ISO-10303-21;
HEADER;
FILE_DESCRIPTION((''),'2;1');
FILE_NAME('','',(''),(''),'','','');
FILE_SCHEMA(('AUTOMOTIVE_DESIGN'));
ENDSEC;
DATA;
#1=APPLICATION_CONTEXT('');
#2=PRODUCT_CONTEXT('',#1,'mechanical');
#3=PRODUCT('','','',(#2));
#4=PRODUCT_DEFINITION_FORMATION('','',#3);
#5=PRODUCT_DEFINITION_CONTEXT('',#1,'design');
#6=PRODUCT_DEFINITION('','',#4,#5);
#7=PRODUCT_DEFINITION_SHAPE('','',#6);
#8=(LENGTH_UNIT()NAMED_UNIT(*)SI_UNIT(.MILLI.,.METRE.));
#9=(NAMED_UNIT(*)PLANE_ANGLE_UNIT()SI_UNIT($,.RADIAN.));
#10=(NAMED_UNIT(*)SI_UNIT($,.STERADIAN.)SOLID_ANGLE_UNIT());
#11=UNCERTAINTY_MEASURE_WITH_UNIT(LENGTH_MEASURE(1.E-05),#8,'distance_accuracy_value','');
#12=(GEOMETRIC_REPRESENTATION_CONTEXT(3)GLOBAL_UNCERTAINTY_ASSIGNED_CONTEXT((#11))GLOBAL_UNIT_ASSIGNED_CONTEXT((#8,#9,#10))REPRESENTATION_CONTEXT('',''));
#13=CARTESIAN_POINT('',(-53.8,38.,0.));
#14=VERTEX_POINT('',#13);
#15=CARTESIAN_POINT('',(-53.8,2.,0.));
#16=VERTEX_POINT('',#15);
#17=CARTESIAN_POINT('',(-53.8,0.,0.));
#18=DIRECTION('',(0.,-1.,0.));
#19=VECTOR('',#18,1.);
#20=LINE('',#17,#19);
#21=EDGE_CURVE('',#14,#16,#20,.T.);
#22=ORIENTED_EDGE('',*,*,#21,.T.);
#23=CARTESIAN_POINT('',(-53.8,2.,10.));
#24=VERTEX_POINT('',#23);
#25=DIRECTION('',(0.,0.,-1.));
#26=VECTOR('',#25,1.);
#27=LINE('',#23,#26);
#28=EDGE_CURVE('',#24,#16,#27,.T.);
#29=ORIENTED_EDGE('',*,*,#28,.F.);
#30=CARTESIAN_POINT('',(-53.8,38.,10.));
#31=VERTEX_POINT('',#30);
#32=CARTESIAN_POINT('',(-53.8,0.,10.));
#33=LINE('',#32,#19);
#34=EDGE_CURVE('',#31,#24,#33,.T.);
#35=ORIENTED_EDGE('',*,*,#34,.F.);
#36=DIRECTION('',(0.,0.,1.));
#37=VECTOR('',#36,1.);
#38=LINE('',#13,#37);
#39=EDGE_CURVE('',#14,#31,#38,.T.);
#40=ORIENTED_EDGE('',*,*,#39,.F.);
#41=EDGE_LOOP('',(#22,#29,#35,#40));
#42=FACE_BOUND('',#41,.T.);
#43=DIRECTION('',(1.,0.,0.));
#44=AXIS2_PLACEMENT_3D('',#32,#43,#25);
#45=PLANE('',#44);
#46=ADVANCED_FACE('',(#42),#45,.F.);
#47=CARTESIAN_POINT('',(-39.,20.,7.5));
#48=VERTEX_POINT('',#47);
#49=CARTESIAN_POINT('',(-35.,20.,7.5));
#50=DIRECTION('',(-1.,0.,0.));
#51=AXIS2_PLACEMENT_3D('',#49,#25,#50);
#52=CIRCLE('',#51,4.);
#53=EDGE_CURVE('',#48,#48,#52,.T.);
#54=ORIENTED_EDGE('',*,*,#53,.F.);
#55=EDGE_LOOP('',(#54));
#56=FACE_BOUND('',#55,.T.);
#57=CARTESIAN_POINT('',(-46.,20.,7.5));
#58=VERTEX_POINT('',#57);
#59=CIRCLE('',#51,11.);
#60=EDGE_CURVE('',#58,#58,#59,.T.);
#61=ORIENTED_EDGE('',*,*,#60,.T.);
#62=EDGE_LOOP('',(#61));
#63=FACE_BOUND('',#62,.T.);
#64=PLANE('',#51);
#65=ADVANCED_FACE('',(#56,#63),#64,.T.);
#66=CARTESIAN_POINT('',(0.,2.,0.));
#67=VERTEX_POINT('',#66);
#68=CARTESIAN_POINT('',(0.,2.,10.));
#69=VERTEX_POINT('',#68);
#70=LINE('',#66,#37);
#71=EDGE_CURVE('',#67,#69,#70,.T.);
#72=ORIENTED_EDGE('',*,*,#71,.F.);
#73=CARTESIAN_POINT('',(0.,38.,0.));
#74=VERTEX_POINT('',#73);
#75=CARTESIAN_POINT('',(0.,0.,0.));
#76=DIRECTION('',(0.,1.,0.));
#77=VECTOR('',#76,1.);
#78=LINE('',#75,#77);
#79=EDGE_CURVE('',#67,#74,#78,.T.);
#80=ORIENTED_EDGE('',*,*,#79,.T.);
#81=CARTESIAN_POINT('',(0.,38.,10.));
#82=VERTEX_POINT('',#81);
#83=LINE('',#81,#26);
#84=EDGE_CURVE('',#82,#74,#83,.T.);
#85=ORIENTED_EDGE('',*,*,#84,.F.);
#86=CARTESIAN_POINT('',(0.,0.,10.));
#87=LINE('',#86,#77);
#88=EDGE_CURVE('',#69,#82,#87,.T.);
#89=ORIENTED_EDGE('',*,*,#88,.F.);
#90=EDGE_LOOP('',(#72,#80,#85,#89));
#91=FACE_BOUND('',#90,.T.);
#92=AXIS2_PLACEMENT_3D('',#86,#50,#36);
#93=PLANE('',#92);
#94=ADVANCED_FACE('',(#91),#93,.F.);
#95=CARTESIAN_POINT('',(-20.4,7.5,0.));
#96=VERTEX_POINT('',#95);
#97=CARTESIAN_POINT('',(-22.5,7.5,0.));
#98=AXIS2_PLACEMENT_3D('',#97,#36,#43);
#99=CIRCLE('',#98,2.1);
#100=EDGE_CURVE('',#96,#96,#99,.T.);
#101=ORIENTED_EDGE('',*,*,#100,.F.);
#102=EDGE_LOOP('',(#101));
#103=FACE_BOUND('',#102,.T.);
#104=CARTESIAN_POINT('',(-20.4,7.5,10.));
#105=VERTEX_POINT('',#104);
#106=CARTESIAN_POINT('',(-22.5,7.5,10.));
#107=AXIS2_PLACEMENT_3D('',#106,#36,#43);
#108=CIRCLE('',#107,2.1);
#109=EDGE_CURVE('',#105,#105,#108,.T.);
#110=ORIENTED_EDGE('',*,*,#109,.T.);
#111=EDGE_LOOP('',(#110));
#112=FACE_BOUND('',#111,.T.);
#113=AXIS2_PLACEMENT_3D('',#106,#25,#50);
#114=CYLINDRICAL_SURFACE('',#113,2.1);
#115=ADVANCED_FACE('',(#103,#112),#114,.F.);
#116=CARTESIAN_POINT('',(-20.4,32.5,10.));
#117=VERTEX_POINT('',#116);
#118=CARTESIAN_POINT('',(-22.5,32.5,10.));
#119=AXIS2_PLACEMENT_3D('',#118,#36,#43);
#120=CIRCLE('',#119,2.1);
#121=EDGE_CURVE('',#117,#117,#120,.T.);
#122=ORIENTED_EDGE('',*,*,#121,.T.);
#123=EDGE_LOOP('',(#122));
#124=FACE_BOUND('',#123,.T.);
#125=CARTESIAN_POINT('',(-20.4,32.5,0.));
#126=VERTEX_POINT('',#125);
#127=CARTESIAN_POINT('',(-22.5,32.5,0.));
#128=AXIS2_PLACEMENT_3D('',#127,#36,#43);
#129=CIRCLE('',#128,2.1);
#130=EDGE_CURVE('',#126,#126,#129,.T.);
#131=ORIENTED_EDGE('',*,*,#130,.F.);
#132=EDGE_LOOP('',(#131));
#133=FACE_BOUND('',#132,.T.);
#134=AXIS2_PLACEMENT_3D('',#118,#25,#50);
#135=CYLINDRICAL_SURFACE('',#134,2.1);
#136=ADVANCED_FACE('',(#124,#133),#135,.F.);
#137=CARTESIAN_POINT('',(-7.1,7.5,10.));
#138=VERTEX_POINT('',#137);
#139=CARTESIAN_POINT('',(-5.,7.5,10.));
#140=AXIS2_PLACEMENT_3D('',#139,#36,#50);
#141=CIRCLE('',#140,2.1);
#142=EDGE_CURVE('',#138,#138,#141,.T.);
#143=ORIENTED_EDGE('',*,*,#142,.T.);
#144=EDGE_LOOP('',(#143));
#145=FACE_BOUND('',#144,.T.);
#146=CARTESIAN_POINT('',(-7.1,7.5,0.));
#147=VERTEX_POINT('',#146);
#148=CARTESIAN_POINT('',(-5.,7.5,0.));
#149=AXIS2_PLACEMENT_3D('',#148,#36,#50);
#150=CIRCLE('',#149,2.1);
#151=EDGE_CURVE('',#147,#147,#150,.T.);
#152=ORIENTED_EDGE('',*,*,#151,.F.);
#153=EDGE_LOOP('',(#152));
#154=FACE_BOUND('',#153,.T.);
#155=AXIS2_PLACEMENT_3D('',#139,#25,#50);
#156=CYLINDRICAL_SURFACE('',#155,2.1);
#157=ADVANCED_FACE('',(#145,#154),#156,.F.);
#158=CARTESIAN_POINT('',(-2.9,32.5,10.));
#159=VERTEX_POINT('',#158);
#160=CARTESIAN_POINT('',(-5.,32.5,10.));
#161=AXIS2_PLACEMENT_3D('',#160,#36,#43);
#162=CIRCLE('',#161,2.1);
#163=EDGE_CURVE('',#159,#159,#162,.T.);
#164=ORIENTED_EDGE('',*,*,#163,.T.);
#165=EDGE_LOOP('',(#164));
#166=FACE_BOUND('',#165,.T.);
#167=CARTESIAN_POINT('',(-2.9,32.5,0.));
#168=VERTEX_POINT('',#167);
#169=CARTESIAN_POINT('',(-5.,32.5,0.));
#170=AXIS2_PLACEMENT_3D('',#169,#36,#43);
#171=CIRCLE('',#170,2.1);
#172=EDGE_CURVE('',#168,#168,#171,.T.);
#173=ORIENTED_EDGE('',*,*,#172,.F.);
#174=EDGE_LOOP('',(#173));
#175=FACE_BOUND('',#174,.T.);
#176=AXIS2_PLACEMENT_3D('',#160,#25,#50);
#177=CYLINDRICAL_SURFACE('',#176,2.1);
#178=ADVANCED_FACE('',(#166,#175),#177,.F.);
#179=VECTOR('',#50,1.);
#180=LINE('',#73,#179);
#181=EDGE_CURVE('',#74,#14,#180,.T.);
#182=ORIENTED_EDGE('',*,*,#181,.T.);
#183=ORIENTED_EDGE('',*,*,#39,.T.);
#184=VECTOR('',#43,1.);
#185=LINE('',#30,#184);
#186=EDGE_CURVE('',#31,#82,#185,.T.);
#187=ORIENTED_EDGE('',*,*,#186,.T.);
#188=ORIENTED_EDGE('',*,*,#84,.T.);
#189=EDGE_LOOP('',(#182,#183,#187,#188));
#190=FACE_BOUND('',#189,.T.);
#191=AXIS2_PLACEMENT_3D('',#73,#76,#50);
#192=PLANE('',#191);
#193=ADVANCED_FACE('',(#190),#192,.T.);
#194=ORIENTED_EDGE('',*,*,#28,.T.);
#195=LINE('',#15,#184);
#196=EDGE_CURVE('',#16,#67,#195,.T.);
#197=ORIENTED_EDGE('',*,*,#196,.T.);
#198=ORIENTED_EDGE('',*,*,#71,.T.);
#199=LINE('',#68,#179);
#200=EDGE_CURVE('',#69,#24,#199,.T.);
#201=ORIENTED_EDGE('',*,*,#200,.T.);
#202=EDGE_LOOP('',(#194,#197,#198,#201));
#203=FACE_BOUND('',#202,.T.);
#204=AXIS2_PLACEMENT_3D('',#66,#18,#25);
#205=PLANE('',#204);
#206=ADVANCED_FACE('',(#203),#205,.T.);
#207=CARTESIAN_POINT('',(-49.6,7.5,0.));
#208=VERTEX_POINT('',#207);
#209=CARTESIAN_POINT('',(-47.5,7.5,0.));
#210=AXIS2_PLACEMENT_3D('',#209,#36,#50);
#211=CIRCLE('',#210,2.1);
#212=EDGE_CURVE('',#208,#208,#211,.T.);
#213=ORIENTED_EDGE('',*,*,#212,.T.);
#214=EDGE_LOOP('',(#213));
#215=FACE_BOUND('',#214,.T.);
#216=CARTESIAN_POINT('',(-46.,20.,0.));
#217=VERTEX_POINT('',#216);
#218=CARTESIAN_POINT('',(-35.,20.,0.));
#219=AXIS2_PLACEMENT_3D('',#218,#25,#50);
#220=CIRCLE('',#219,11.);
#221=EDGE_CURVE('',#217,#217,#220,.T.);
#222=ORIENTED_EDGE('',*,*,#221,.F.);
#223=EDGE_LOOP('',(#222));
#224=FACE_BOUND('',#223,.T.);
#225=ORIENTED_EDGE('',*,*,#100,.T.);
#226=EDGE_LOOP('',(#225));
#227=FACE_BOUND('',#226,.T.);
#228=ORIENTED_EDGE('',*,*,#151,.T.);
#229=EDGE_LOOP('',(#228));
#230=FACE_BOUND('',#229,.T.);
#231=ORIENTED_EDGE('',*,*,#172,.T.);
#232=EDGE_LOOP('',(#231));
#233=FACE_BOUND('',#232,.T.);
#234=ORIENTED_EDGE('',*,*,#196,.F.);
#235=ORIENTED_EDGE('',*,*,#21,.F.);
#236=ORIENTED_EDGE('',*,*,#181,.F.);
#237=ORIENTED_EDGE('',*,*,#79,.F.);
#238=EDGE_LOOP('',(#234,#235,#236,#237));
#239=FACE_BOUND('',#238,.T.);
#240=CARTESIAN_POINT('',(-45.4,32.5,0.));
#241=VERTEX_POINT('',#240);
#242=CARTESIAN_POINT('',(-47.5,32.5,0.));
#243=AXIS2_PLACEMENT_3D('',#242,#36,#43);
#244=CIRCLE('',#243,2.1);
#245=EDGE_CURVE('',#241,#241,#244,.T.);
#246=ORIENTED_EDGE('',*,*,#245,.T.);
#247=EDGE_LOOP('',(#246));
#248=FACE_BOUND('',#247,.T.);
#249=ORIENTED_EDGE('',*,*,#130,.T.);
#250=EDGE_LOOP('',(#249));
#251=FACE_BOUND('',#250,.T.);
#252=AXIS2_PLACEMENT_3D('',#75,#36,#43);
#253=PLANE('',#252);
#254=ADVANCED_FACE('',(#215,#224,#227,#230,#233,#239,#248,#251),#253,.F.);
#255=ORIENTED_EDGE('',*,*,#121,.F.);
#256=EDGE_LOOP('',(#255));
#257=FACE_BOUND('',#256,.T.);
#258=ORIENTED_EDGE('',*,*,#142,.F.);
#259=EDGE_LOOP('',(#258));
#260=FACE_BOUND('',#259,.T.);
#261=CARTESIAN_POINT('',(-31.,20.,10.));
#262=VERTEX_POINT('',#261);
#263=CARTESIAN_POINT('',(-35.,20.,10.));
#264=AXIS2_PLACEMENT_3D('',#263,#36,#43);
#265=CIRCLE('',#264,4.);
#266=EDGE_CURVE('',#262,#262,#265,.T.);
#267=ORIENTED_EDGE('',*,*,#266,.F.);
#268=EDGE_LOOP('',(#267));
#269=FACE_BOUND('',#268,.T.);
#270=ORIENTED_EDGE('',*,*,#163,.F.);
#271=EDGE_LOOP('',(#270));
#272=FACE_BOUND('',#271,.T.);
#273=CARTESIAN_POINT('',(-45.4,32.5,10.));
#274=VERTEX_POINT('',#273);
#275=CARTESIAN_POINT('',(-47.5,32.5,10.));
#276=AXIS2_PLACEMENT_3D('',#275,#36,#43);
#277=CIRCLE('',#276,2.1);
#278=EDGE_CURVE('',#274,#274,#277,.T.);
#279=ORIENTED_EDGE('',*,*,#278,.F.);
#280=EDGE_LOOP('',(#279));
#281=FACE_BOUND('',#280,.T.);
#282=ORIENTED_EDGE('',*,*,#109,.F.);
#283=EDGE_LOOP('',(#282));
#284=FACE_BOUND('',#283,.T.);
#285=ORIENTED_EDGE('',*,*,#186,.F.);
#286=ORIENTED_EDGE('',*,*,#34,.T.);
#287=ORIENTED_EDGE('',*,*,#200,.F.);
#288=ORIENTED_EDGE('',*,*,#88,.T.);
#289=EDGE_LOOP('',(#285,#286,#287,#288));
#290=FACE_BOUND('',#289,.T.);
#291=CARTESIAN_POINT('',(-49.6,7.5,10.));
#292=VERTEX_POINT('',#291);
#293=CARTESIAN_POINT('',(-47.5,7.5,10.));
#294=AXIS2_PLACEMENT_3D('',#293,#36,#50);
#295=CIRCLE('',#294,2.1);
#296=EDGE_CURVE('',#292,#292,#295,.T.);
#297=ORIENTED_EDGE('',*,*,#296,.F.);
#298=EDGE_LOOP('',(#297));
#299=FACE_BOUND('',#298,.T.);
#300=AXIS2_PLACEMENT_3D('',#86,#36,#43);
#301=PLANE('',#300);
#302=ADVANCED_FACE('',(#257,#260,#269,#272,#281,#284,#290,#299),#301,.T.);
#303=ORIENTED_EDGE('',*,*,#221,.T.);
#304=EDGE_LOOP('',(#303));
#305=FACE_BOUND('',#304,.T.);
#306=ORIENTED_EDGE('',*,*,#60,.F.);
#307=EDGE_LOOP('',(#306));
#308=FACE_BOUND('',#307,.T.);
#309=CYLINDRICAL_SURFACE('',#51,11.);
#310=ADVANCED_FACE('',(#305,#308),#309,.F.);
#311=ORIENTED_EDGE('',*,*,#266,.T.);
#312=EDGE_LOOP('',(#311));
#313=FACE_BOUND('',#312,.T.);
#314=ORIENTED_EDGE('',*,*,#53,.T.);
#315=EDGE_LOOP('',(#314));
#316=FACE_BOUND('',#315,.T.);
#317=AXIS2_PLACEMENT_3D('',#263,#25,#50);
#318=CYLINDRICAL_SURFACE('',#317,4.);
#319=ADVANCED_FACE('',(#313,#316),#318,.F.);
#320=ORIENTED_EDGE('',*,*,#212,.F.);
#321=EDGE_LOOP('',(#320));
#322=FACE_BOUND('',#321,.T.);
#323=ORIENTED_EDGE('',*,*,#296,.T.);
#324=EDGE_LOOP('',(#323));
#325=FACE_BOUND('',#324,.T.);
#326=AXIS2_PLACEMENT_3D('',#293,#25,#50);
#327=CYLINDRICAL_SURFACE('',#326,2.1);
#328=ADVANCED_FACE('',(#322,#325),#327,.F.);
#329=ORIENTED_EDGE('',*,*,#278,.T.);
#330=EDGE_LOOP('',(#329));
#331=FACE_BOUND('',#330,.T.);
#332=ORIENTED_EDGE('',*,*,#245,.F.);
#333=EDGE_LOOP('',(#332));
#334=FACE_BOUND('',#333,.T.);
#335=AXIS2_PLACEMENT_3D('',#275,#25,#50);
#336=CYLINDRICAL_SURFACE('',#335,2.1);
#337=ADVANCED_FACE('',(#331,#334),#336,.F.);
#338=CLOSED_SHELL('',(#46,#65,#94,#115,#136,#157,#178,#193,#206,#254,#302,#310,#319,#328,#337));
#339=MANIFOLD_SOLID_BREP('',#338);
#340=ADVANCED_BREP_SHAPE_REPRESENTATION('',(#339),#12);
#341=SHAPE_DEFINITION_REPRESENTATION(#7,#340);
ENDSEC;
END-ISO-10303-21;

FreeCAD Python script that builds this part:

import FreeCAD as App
import Part
import Sketcher
Q = App.Units.Quantity


def add_polygon(sketch, points):
    """Adds a closed chain of lines whose ends are joined by coincident constraints."""
    first, n = sketch.GeometryCount, len(points)
    for a, b in zip(points, points[1:] + points[:1]):
        sketch.addGeometry(Part.LineSegment(App.Vector(*a, 0), App.Vector(*b, 0)), False)
    for i in range(n):
        sketch.addConstraint(Sketcher.Constraint("Coincident", first + i, 2, first + (i + 1) % n, 1))

doc = App.newDocument("Part")
params = doc.addObject("Spreadsheet::Sheet", "Params")
for row, (alias, value) in enumerate([
    ("sketch1_diameter", "8 mm"),
    ("sketch1_diameter2", "4.2 mm"),
    ("sketch1_height", "40 mm"),
    ("sketch1_width", "53.8 mm"),
    ("pad1_length", "10 mm"),
    ("sketch2_diameter", "22 mm"),
    ("pocket1_length", "7.5 mm"),
    ("sketch3_height", "10 mm"),
    ("sketch3_width", "53.8 mm"),
    ("pocket2_length", "2 mm"),
    ("sketch4_height", "10 mm"),
    ("sketch4_width", "53.8 mm"),
    ("pocket3_length", "2 mm"),
], start=1):
    params.set(f"A{row}", alias)
    params.set(f"B{row}", "=" + value)
    params.setAlias(f"B{row}", alias)

body = doc.addObject("PartDesign::Body", "Body")

sketch1 = body.newObject("Sketcher::SketchObject", "Sketch")
sketch1.AttachmentSupport = (doc.getObject("XY_Plane"), [""])
sketch1.MapMode = "FlatFace"
add_polygon(sketch1, [(-53.8, 40), (-53.8, 0), (0, 0), (0, 40)])
sketch1.addGeometry(Part.Circle(App.Vector(-47.5, 7.5, 0), App.Vector(0, 0, 1), 2.1), False)
sketch1.addGeometry(Part.Circle(App.Vector(-22.5, 7.5, 0), App.Vector(0, 0, 1), 2.1), False)
sketch1.addGeometry(Part.Circle(App.Vector(-5, 7.5, 0), App.Vector(0, 0, 1), 2.1), False)
sketch1.addGeometry(Part.Circle(App.Vector(-35, 20, 0), App.Vector(0, 0, 1), 4), False)
sketch1.addGeometry(Part.Circle(App.Vector(-47.5, 32.5, 0), App.Vector(0, 0, 1), 2.1), False)
sketch1.addGeometry(Part.Circle(App.Vector(-22.5, 32.5, 0), App.Vector(0, 0, 1), 2.1), False)
sketch1.addGeometry(Part.Circle(App.Vector(-5, 32.5, 0), App.Vector(0, 0, 1), 2.1), False)
sketch1.addConstraint([
    Sketcher.Constraint("Vertical", 0),
    Sketcher.Constraint("Horizontal", 1),
    Sketcher.Constraint("Vertical", 2),
    Sketcher.Constraint("Horizontal", 3),
    Sketcher.Constraint("Coincident", 1, 2, -1, 1),
    Sketcher.Constraint("Equal", 4, 5),
    Sketcher.Constraint("Equal", 5, 6),
    Sketcher.Constraint("Equal", 6, 8),
    Sketcher.Constraint("Equal", 8, 9),
    Sketcher.Constraint("Equal", 9, 10),
    Sketcher.Constraint("Horizontal", 4, 3, 5, 3),
    Sketcher.Constraint("Horizontal", 5, 3, 6, 3),
    Sketcher.Constraint("Horizontal", 8, 3, 9, 3),
    Sketcher.Constraint("Horizontal", 9, 3, 10, 3),
    Sketcher.Constraint("Vertical", 4, 3, 8, 3),
    Sketcher.Constraint("Vertical", 5, 3, 9, 3),
    Sketcher.Constraint("Vertical", 6, 3, 10, 3),
    Sketcher.Constraint("Diameter", 7, Q("8 mm")),
    Sketcher.Constraint("Diameter", 4, Q("4.2 mm")),
    Sketcher.Constraint("DistanceY", 0, 2, 0, 1, Q("40 mm")),
    Sketcher.Constraint("DistanceX", 1, 1, 1, 2, Q("53.8 mm")),
    Sketcher.Constraint("DistanceX", 6, 3, -1, 1, Q("5 mm")),
    Sketcher.Constraint("DistanceX", 7, 3, -1, 1, Q("35 mm")),
    Sketcher.Constraint("DistanceY", -1, 1, 7, 3, Q("20 mm")),
    Sketcher.Constraint("DistanceX", 4, 3, 5, 3, Q("25 mm")),
    Sketcher.Constraint("DistanceY", 4, 3, 8, 3, Q("25 mm")),
    Sketcher.Constraint("DistanceX", 4, 3, -1, 1, Q("47.5 mm")),
    Sketcher.Constraint("DistanceY", -1, 1, 4, 3, Q("7.5 mm")),
])
sketch1.setExpression("Constraints[21]", "Params.sketch1_diameter")
sketch1.setExpression("Constraints[22]", "Params.sketch1_diameter2")
sketch1.setExpression("Constraints[23]", "Params.sketch1_height")
sketch1.setExpression("Constraints[24]", "Params.sketch1_width")
pad1 = body.newObject("PartDesign::Pad", "Pad")
pad1.Profile = sketch1
pad1.setExpression("Length", "Params.pad1_length")

sketch2 = body.newObject("Sketcher::SketchObject", "Sketch001")
sketch2.AttachmentSupport = (doc.getObject("XY_Plane"), [""])
sketch2.MapMode = "FlatFace"
sketch2.addGeometry(Part.Circle(App.Vector(-35, 20, 0), App.Vector(0, 0, 1), 11), False)
sketch2.addConstraint([
    Sketcher.Constraint("Diameter", 0, Q("22 mm")),
    Sketcher.Constraint("DistanceX", 0, 3, -1, 1, Q("35 mm")),
    Sketcher.Constraint("DistanceY", -1, 1, 0, 3, Q("20 mm")),
])
sketch2.setExpression("Constraints[0]", "Params.sketch2_diameter")
pocket1 = body.newObject("PartDesign::Pocket", "Pocket")
pocket1.Profile = sketch2
pocket1.setExpression("Length", "Params.pocket1_length")
pocket1.Reversed = True

sketch3 = body.newObject("Sketcher::SketchObject", "Sketch002")
sketch3.AttachmentSupport = (doc.getObject("XZ_Plane"), [""])
sketch3.MapMode = "FlatFace"
add_polygon(sketch3, [(-54, 10), (-54, 0), (0, 0), (0, 10)])
sketch3.addConstraint([
    Sketcher.Constraint("Vertical", 0),
    Sketcher.Constraint("Horizontal", 1),
    Sketcher.Constraint("Vertical", 2),
    Sketcher.Constraint("Horizontal", 3),
    Sketcher.Constraint("Coincident", 1, 2, -1, 1),
    Sketcher.Constraint("DistanceY", 0, 2, 0, 1, Q("10 mm")),
    Sketcher.Constraint("DistanceX", 1, 1, 1, 2, Q("53.8 mm")),
])
sketch3.setExpression("Constraints[9]", "Params.sketch3_height")
sketch3.setExpression("Constraints[10]", "Params.sketch3_width")
pocket2 = body.newObject("PartDesign::Pocket", "Pocket001")
pocket2.Profile = sketch3
pocket2.setExpression("Length", "Params.pocket2_length")

sketch4 = body.newObject("Sketcher::SketchObject", "Sketch003")
sketch4.AttachmentSupport = (doc.getObject("XZ_Plane"), [""])
sketch4.MapMode = "FlatFace"
sketch4.AttachmentOffset = App.Placement(App.Vector(0, 0, -40), App.Rotation())
add_polygon(sketch4, [(-54, 0), (-54, 10), (0, 10), (0, 0)])
sketch4.addConstraint([
    Sketcher.Constraint("Vertical", 0),
    Sketcher.Constraint("Horizontal", 1),
    Sketcher.Constraint("Vertical", 2),
    Sketcher.Constraint("Horizontal", 3),
    Sketcher.Constraint("Coincident", 2, 2, -1, 1),
    Sketcher.Constraint("DistanceY", 0, 1, 0, 2, Q("10 mm")),
    Sketcher.Constraint("DistanceX", 1, 1, 1, 2, Q("53.8 mm")),
])
sketch4.setExpression("Constraints[9]", "Params.sketch4_height")
sketch4.setExpression("Constraints[10]", "Params.sketch4_width")
pocket3 = body.newObject("PartDesign::Pocket", "Pocket002")
pocket3.Profile = sketch4
pocket3.setExpression("Length", "Params.pocket3_length")
pocket3.Reversed = True

doc.recompute()
